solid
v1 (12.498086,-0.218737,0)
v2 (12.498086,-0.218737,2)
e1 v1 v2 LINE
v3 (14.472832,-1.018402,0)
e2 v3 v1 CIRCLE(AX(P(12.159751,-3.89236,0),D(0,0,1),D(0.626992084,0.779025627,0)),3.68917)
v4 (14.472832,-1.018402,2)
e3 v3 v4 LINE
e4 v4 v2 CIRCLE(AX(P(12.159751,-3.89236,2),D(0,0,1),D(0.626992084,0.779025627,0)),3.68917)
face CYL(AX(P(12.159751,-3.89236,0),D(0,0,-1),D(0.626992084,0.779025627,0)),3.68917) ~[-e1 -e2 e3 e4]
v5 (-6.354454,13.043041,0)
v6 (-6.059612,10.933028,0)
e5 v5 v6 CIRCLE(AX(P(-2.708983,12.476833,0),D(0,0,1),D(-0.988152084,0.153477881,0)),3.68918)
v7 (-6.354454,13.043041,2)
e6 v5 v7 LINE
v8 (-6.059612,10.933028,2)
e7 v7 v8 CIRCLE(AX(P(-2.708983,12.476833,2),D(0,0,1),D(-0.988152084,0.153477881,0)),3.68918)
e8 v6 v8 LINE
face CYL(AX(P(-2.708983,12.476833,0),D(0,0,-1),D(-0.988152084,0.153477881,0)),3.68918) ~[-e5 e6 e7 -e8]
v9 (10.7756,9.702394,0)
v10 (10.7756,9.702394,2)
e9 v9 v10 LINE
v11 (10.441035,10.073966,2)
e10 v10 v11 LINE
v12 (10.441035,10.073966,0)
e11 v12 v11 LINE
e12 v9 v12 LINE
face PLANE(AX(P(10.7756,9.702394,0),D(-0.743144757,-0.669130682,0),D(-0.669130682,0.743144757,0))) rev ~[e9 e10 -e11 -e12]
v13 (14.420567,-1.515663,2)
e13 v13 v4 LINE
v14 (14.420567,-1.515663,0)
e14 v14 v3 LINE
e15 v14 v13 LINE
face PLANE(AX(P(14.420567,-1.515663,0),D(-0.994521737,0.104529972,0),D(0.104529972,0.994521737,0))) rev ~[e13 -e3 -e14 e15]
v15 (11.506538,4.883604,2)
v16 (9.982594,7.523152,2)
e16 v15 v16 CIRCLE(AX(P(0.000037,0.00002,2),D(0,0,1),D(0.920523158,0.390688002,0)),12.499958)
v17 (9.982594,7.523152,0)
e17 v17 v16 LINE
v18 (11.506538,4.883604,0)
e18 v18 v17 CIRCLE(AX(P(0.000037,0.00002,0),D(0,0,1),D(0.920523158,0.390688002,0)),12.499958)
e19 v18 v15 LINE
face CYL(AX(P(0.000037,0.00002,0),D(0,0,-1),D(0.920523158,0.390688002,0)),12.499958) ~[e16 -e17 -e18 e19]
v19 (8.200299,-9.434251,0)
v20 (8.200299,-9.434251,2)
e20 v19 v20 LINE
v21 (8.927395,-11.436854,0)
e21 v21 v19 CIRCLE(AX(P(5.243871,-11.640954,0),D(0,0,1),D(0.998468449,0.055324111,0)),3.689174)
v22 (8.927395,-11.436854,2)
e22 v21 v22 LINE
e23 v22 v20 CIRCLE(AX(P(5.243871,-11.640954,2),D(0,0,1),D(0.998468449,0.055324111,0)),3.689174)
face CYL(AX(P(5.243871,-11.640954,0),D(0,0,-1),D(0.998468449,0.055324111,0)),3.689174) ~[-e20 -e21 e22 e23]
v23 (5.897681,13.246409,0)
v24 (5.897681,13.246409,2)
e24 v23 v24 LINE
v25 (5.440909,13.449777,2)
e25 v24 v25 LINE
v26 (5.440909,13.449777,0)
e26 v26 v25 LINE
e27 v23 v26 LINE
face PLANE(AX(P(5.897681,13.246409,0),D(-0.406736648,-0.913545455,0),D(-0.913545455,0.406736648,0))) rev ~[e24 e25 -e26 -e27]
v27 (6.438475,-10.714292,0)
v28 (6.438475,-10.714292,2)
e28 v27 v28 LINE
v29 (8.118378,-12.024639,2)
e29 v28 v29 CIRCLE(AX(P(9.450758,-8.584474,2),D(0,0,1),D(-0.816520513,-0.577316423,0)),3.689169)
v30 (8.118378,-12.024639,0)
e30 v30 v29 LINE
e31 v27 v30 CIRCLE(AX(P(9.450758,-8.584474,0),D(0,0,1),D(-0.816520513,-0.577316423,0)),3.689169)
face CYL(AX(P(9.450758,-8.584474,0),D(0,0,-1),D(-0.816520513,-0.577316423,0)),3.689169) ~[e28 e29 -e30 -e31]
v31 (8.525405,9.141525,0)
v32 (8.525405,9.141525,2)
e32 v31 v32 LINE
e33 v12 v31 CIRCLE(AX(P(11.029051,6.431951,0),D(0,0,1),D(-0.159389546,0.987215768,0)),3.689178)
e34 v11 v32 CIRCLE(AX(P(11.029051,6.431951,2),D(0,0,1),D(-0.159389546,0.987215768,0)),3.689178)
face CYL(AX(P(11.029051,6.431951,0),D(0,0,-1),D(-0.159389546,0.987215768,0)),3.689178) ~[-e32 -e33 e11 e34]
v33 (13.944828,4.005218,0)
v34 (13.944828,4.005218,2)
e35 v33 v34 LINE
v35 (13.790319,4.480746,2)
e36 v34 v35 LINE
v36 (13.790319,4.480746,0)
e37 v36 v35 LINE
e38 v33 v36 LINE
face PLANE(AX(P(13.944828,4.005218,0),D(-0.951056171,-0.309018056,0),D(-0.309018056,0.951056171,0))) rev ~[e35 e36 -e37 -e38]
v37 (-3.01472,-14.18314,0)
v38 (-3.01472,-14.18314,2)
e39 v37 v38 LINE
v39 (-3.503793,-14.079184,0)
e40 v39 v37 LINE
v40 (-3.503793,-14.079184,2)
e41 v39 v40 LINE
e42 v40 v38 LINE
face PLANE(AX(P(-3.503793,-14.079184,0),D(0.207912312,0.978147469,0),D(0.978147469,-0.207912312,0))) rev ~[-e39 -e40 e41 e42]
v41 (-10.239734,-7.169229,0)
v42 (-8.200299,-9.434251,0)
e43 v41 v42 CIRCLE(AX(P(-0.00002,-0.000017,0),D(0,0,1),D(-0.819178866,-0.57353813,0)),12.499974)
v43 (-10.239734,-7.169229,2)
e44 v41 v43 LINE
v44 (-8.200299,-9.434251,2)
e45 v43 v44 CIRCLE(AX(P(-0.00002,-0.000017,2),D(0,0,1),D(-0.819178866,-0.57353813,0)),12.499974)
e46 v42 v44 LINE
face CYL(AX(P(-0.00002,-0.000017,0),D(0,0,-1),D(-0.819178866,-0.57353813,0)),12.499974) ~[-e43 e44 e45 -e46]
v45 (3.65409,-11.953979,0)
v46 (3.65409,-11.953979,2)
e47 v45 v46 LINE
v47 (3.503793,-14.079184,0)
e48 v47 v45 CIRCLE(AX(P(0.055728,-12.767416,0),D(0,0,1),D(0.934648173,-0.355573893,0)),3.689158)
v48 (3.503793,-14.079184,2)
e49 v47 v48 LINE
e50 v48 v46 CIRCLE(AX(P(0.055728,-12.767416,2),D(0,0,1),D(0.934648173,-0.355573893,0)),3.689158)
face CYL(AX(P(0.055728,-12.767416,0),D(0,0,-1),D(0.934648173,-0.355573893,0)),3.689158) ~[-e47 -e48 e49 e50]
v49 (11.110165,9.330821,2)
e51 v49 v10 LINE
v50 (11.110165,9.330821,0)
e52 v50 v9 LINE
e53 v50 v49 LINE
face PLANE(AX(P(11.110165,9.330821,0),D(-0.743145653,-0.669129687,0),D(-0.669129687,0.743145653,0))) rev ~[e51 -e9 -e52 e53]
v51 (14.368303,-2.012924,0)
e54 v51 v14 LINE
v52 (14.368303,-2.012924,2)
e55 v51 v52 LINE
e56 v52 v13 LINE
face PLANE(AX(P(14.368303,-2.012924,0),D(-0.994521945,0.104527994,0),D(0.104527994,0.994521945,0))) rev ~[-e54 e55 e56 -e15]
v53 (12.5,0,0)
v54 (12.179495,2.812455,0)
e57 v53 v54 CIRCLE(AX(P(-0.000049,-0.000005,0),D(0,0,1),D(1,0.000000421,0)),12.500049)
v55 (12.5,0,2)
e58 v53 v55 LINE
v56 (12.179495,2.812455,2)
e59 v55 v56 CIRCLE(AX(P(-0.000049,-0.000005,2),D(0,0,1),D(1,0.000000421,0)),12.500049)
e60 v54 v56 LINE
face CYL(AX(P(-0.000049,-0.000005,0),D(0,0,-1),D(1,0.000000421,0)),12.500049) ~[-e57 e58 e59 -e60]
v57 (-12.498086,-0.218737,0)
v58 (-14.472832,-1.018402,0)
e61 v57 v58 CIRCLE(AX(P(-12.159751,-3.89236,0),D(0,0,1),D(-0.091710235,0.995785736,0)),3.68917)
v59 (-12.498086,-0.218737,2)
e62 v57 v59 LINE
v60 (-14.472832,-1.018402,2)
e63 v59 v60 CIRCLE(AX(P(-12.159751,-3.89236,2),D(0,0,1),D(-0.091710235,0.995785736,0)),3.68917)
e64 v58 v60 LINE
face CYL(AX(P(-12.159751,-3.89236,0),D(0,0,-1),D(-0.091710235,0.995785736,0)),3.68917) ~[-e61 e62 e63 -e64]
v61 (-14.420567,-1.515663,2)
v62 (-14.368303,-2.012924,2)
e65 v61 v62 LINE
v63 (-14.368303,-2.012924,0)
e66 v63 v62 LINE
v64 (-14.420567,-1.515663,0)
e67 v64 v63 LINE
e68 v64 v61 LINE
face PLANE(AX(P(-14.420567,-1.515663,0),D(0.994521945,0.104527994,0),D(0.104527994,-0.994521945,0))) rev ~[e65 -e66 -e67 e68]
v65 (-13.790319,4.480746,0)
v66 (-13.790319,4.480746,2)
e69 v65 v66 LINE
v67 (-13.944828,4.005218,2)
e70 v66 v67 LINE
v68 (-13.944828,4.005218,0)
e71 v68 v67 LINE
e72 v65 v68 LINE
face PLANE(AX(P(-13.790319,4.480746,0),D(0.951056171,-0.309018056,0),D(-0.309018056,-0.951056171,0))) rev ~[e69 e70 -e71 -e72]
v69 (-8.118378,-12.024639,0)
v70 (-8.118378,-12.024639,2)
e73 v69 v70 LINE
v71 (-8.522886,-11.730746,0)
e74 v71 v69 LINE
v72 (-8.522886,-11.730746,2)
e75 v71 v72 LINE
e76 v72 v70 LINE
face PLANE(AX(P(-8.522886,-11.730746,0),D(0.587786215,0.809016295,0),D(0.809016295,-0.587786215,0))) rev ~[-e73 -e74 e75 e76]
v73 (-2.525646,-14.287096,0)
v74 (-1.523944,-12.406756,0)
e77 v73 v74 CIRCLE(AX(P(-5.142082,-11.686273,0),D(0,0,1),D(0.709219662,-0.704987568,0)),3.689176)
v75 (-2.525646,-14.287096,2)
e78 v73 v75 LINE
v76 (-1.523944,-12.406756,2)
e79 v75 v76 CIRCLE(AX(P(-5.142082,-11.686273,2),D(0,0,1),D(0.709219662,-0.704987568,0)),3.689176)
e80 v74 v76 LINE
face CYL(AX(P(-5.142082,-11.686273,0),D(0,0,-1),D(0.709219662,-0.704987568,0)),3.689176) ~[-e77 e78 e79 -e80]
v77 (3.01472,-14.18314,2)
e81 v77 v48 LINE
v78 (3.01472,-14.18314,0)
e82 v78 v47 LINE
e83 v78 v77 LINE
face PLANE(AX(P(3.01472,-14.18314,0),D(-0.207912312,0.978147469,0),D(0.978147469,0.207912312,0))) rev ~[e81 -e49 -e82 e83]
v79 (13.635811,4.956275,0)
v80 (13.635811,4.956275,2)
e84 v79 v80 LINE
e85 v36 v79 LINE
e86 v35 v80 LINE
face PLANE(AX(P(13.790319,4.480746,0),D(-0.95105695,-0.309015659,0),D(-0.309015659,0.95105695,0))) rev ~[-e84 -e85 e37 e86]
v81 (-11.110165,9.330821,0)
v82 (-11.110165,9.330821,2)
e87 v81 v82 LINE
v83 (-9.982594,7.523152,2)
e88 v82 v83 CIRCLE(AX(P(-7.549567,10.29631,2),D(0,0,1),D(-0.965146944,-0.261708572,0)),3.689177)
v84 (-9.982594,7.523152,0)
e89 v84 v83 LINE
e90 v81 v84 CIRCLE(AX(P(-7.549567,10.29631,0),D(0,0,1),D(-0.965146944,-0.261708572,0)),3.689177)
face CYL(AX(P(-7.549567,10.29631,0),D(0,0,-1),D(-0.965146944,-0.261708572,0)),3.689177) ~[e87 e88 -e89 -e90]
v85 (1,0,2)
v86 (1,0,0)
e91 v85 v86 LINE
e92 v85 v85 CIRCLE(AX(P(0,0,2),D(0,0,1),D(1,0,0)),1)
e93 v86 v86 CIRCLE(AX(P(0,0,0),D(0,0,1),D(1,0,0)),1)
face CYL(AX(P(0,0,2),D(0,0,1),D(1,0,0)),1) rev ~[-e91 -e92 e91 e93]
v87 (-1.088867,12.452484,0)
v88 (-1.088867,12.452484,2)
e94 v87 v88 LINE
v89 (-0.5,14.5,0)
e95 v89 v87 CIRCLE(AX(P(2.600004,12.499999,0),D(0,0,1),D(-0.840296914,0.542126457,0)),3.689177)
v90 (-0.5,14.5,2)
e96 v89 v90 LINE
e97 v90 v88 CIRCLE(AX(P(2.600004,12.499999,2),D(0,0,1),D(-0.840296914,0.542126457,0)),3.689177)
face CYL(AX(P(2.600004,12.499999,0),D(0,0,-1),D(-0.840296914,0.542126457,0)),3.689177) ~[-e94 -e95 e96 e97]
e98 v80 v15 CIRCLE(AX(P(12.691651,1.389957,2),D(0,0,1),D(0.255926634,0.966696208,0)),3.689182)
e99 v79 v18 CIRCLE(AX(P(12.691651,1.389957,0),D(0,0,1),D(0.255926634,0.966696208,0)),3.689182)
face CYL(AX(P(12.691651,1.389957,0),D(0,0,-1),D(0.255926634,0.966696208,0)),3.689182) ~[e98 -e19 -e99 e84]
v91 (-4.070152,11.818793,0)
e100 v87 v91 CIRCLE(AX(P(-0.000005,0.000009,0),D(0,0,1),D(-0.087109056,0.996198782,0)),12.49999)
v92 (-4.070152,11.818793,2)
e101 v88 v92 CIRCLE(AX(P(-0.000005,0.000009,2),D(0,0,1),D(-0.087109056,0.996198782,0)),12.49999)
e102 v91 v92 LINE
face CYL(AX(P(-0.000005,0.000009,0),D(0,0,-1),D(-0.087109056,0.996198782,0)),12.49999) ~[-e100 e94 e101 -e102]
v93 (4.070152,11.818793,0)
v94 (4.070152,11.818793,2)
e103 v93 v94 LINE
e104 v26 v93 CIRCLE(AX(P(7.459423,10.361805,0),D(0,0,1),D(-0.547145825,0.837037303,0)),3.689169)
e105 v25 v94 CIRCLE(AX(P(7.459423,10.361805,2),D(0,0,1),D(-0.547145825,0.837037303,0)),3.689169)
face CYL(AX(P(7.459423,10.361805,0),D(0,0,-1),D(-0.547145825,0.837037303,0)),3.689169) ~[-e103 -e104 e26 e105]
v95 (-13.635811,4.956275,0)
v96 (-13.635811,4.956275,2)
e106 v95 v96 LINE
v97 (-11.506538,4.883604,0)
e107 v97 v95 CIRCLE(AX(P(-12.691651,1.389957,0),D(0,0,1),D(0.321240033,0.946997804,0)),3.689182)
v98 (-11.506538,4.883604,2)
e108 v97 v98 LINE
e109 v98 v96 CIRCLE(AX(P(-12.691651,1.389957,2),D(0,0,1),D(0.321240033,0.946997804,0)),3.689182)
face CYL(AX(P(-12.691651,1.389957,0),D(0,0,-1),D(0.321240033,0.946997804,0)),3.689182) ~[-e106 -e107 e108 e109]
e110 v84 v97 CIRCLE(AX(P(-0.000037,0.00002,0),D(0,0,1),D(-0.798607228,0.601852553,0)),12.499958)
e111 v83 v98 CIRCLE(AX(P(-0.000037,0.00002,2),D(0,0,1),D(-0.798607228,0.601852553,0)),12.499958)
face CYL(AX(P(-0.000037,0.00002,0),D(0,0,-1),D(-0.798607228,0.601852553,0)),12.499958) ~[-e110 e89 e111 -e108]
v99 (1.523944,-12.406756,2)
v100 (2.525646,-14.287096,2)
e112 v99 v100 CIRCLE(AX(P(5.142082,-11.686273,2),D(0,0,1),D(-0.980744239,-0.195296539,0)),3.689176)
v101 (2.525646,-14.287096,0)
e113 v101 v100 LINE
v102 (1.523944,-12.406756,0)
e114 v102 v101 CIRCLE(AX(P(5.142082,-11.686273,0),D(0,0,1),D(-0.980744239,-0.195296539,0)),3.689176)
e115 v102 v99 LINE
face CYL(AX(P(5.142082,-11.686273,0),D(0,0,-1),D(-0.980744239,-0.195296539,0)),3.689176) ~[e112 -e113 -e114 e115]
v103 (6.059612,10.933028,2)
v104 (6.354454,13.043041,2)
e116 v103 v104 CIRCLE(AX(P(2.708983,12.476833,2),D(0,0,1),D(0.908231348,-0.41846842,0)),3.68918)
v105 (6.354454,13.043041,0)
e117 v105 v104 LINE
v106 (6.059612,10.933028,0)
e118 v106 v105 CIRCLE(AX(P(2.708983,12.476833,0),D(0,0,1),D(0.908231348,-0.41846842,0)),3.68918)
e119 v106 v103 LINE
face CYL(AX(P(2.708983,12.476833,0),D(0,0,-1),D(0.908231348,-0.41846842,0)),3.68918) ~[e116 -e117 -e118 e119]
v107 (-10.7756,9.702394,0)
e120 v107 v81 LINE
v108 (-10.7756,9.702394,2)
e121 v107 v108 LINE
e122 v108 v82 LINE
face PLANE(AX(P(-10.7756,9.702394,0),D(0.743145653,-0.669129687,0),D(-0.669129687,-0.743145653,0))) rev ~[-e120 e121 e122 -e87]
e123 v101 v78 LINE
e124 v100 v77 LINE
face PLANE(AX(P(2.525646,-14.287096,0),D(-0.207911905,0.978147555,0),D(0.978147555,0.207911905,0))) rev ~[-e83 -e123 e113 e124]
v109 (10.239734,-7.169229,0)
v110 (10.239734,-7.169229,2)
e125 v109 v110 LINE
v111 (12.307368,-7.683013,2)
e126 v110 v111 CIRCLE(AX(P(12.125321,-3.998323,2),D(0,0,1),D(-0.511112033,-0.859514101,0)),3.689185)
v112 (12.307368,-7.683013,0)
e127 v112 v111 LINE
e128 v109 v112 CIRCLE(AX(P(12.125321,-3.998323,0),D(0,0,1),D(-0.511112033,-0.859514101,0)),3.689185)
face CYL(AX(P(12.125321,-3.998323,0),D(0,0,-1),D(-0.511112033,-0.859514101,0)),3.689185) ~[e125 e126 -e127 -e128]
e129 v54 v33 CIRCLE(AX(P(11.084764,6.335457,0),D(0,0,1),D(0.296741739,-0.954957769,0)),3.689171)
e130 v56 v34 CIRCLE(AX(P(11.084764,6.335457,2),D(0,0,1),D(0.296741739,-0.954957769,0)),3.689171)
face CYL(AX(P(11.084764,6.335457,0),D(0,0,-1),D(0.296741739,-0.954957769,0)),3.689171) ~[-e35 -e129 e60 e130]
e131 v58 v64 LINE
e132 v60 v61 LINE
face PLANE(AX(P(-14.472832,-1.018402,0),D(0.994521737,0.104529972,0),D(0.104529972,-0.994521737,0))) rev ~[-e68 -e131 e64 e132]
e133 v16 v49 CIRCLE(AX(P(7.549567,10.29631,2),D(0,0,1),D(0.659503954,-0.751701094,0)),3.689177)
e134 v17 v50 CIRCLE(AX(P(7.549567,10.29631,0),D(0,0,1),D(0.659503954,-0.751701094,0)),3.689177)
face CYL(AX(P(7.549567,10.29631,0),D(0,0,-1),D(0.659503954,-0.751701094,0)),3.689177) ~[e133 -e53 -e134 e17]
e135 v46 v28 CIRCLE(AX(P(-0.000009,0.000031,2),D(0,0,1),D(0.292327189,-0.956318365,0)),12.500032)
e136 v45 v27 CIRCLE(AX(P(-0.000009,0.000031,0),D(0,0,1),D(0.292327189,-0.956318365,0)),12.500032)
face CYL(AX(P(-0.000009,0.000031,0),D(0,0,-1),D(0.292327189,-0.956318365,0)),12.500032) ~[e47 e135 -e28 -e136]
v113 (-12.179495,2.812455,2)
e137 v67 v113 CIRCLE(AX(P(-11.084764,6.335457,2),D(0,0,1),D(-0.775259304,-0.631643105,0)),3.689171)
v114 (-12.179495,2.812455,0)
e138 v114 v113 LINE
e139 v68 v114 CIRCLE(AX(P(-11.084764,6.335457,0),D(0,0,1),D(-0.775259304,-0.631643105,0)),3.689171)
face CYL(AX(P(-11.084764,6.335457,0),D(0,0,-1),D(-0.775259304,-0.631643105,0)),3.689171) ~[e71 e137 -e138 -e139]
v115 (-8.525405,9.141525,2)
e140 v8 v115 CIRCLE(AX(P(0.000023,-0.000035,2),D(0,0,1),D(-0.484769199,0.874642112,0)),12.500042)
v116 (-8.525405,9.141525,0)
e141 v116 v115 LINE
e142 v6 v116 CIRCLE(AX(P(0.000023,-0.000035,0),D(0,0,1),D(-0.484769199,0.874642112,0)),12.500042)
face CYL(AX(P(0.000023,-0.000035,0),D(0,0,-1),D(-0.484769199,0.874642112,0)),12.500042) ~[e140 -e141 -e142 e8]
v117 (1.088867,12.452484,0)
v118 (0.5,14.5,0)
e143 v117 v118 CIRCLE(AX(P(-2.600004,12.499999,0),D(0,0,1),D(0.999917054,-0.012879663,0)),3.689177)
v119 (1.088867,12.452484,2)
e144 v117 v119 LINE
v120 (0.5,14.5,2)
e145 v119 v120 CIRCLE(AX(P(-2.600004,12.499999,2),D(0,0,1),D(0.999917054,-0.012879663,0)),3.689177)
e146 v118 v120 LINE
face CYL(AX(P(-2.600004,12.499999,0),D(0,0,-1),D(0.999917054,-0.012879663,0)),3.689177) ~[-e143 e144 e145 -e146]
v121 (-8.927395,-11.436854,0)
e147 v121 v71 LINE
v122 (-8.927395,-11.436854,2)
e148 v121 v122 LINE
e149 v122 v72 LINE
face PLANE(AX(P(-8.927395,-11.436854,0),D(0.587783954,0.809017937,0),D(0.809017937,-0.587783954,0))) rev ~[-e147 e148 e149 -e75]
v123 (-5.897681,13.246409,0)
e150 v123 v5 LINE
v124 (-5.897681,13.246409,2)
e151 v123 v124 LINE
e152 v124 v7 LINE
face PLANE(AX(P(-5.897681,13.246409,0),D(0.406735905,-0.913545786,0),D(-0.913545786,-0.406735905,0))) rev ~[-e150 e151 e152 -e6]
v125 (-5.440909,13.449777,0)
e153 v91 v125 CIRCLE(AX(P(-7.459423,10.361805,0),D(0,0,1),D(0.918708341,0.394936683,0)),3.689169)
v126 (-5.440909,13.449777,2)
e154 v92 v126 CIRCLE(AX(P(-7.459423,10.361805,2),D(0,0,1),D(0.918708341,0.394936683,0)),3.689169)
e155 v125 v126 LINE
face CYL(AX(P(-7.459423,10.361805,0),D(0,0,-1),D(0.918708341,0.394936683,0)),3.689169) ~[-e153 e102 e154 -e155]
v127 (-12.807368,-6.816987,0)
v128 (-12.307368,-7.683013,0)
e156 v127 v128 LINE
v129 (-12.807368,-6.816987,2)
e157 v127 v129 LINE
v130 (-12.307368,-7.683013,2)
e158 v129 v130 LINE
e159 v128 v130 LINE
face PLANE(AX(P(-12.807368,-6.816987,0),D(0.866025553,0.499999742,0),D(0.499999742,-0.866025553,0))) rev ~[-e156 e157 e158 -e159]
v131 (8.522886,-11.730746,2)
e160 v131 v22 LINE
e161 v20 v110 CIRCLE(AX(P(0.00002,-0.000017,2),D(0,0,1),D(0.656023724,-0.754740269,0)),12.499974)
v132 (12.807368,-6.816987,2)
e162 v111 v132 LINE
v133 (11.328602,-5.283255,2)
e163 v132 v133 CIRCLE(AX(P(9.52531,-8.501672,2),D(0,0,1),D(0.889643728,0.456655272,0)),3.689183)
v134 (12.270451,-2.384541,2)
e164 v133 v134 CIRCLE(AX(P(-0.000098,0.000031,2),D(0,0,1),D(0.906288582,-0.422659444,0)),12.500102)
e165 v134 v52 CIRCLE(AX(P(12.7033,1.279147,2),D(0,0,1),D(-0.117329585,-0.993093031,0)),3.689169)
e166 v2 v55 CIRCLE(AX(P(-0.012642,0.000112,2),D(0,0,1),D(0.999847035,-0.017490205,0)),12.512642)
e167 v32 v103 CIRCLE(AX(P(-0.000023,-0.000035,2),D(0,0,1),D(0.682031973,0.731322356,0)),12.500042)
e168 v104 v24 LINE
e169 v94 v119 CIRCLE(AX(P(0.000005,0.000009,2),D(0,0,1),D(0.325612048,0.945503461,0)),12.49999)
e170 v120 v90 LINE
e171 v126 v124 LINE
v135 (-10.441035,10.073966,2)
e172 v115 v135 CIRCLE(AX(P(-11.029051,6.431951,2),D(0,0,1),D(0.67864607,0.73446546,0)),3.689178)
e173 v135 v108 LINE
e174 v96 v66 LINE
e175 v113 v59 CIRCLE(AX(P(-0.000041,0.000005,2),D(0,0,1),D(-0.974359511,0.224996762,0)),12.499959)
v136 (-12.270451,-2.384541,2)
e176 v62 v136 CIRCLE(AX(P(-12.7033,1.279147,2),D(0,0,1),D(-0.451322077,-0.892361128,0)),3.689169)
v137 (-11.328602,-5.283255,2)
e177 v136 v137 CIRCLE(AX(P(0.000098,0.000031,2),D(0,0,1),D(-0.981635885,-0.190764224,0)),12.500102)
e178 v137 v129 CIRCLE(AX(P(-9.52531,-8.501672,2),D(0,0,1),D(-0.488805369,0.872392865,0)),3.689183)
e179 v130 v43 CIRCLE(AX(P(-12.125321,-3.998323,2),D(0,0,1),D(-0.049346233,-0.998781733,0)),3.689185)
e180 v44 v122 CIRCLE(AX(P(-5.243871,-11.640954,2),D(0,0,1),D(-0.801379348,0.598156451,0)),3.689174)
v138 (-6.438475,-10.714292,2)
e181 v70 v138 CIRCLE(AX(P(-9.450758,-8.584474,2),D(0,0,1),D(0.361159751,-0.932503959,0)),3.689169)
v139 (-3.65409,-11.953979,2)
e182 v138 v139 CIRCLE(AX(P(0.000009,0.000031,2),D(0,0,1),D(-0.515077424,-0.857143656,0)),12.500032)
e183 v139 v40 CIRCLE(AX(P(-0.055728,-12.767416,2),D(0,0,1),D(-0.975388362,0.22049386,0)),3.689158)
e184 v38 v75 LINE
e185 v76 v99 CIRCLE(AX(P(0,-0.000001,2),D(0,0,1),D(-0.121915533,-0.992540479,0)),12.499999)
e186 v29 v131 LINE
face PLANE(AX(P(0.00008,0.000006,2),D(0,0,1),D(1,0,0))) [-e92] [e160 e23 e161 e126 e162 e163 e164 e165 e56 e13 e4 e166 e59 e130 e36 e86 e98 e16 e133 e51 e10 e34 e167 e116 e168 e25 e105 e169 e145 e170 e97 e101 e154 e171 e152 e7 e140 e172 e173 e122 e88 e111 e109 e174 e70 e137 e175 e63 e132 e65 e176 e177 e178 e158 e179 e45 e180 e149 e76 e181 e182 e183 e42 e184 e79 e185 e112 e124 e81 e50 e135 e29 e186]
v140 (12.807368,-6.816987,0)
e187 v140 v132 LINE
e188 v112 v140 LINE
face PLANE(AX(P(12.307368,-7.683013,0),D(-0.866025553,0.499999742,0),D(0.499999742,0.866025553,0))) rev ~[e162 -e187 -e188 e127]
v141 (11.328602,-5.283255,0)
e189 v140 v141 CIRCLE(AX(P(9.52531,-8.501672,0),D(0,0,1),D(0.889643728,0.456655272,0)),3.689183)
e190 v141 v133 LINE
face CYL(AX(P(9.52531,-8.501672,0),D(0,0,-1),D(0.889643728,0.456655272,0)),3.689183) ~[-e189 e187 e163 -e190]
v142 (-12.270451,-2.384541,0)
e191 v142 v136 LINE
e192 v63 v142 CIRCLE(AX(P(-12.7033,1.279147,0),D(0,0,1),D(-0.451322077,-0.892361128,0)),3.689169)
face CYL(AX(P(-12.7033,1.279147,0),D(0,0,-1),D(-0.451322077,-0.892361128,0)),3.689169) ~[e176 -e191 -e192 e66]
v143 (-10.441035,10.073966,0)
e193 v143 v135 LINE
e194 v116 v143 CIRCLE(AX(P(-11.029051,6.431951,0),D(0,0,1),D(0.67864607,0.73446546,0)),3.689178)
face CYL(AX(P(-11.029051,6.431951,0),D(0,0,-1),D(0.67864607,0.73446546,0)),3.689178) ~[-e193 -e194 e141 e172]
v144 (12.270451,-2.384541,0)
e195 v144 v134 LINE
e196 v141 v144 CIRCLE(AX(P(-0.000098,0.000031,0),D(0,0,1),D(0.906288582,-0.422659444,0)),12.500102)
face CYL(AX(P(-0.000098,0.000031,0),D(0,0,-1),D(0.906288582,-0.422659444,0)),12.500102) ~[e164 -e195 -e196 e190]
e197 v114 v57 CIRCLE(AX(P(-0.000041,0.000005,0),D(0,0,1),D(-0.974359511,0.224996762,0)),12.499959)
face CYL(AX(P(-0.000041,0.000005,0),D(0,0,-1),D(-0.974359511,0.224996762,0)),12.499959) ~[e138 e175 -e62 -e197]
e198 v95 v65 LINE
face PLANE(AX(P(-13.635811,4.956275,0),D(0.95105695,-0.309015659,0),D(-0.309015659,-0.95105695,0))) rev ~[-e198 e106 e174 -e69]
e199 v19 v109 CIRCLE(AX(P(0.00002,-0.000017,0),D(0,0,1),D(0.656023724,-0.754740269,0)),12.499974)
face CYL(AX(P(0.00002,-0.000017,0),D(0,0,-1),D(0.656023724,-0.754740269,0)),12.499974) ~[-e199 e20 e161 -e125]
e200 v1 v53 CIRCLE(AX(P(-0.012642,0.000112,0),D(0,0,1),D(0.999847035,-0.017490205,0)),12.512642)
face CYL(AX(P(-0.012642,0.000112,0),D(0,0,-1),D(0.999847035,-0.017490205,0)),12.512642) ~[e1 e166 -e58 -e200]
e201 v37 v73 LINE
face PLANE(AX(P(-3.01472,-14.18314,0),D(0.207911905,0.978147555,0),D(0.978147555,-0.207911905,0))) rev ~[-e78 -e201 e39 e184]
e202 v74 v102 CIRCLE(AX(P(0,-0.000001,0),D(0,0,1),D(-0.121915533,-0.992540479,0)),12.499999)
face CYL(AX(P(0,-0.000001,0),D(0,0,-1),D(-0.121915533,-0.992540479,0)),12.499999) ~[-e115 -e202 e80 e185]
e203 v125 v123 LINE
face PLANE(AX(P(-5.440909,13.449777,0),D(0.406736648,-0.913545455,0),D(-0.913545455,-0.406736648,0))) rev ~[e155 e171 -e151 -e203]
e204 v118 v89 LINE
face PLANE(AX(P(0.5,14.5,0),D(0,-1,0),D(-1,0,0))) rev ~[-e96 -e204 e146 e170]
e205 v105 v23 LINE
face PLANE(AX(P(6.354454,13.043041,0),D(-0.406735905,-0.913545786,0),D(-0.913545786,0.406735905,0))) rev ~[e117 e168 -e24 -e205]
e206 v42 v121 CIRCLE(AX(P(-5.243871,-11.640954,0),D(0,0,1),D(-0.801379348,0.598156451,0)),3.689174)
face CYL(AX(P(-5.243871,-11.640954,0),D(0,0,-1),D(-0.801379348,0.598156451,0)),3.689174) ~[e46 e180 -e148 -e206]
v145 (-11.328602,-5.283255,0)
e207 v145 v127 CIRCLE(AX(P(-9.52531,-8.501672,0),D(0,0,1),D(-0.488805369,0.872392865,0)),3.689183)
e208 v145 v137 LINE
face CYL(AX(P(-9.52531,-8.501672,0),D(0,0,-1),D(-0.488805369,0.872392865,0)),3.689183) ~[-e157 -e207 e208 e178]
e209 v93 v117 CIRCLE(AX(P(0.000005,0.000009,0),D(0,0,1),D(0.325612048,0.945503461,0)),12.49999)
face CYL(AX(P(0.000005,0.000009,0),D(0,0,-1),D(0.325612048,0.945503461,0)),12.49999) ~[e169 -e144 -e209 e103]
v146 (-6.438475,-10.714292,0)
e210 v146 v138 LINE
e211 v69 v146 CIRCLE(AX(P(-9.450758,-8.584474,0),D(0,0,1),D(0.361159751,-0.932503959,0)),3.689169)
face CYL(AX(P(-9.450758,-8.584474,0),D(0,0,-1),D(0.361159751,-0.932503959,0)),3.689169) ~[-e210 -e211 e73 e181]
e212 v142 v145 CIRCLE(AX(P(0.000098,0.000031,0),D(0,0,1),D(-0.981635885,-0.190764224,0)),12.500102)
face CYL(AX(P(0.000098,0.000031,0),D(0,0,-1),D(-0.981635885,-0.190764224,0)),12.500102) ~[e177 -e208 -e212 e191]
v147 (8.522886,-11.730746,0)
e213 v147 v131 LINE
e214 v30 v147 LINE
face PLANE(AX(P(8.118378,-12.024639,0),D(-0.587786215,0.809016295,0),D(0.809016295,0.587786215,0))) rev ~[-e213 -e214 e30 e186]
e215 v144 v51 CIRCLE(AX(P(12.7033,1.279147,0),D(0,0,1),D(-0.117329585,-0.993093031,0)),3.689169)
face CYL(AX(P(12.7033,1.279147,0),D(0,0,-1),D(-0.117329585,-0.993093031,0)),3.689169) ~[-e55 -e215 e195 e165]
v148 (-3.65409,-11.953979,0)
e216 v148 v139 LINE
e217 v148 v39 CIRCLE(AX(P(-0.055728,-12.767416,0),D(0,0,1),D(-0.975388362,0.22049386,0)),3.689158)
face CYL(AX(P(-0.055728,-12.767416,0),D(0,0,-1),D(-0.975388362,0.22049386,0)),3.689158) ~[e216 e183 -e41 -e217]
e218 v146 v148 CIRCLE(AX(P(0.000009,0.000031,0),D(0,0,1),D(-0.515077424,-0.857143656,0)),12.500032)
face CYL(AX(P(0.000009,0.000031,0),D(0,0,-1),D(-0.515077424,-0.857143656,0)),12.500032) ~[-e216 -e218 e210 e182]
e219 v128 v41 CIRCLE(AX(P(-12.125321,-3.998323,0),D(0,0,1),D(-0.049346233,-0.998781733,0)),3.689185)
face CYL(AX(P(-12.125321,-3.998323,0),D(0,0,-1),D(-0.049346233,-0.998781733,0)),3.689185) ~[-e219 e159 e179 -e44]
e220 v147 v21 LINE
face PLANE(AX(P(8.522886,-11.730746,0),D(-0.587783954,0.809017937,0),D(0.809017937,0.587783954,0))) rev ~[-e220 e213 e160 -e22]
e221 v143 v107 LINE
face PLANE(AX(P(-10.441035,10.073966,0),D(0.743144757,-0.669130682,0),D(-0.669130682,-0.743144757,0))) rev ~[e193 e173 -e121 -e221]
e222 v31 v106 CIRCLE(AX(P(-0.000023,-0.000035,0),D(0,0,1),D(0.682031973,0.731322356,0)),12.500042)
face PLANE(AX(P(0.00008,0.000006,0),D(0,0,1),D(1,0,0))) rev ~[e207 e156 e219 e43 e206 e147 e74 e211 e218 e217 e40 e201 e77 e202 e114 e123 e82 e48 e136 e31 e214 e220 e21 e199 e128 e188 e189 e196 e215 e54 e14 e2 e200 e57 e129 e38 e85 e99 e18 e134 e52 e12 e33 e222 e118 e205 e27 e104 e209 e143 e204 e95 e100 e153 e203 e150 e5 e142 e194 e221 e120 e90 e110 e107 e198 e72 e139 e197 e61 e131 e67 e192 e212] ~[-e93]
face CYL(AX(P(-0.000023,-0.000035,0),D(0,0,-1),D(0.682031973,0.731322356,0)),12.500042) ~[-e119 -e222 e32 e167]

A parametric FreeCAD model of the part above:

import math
import FreeCAD as App
import Part
import Sketcher
from FreeCAD import Vector

doc = App.newDocument("Part")
body = doc.addObject("PartDesign::Body", "Body")

sketch1 = body.newObject("Sketcher::SketchObject", "Sketch")
sketch1.AttachmentSupport = (doc.getObject("XY_Plane"), [""])
sketch1.MapMode = "FlatFace"
sketch1.addGeometry([
    Part.ArcOfCircle(Part.Circle(Vector(-0.012642, 0.000112, 0), Vector(0, 0, 1), 12.512642), math.radians(-1.002166), math.radians(-0.000511)),
    Part.ArcOfCircle(Part.Circle(Vector(-0.000049, -0.000005, 0), Vector(0, 0, 1), 12.500049), math.radians(0.000024), math.radians(13.00264)),
    Part.ArcOfCircle(Part.Circle(Vector(11.084764, 6.335457, 0), Vector(0, 0, 1), 3.689171), math.radians(-72.737991), math.radians(-39.171452)),
    Part.LineSegment(Vector(13.944828, 4.005218, 0), Vector(13.790319, 4.480746, 0)),
    Part.LineSegment(Vector(13.790319, 4.480746, 0), Vector(13.635811, 4.956275, 0)),
    Part.ArcOfCircle(Part.Circle(Vector(12.691651, 1.389957, 0), Vector(0, 0, 1), 3.689182), math.radians(75.1715), math.radians(108.737933)),
    Part.ArcOfCircle(Part.Circle(Vector(0.000037, 0.00002, 0), Vector(0, 0, 1), 12.499958), math.radians(22.997316), math.radians(37.002693)),
    Part.ArcOfCircle(Part.Circle(Vector(7.549567, 10.29631, 0), Vector(0, 0, 1), 3.689177), math.radians(-48.737948), math.radians(-15.171467)),
    Part.LineSegment(Vector(11.110165, 9.330821, 0), Vector(10.7756, 9.702394, 0)),
    Part.LineSegment(Vector(10.7756, 9.702394, 0), Vector(10.441035, 10.073966, 0)),
    Part.ArcOfCircle(Part.Circle(Vector(11.029051, 6.431951, 0), Vector(0, 0, 1), 3.689178), math.radians(99.171465), math.radians(132.737933)),
    Part.ArcOfCircle(Part.Circle(Vector(-0.000023, -0.000035, 0), Vector(0, 0, 1), 12.500042), math.radians(46.997367), math.radians(61.002648)),
    Part.ArcOfCircle(Part.Circle(Vector(2.708983, 12.476833, 0), Vector(0, 0, 1), 3.68918), math.radians(-24.73793), math.radians(8.828529)),
    Part.LineSegment(Vector(6.354454, 13.043041, 0), Vector(5.897681, 13.246409, 0)),
    Part.LineSegment(Vector(5.897681, 13.246409, 0), Vector(5.440909, 13.449777, 0)),
    Part.ArcOfCircle(Part.Circle(Vector(7.459423, 10.361805, 0), Vector(0, 0, 1), 3.689169), math.radians(123.171424), math.radians(156.737975)),
    Part.ArcOfCircle(Part.Circle(Vector(0.000005, 0.000009, 0), Vector(0, 0, 1), 12.49999), math.radians(70.99734), math.radians(85.002685)),
    Part.ArcOfCircle(Part.Circle(Vector(-2.600004, 12.499999, 0), Vector(0, 0, 1), 3.689177), math.radians(-0.737971), math.radians(32.828514)),
    Part.LineSegment(Vector(0.5, 14.5, 0), Vector(-0.5, 14.5, 0)),
    Part.ArcOfCircle(Part.Circle(Vector(2.600004, 12.499999, 0), Vector(0, 0, 1), 3.689177), math.radians(147.171486), math.radians(180.737971)),
    Part.ArcOfCircle(Part.Circle(Vector(-0.000005, 0.000009, 0), Vector(0, 0, 1), 12.49999), math.radians(94.997315), math.radians(109.00266)),
    Part.ArcOfCircle(Part.Circle(Vector(-7.459423, 10.361805, 0), Vector(0, 0, 1), 3.689169), math.radians(23.262025), math.radians(56.828576)),
    Part.LineSegment(Vector(-5.440909, 13.449777, 0), Vector(-5.897681, 13.246409, 0)),
    Part.LineSegment(Vector(-5.897681, 13.246409, 0), Vector(-6.354454, 13.043041, 0)),
    Part.ArcOfCircle(Part.Circle(Vector(-2.708983, 12.476833, 0), Vector(0, 0, 1), 3.68918), math.radians(171.171471), math.radians(204.73793)),
    Part.ArcOfCircle(Part.Circle(Vector(0.000023, -0.000035, 0), Vector(0, 0, 1), 12.500042), math.radians(118.997352), math.radians(133.002633)),
    Part.ArcOfCircle(Part.Circle(Vector(-11.029051, 6.431951, 0), Vector(0, 0, 1), 3.689178), math.radians(47.262067), math.radians(80.828535)),
    Part.LineSegment(Vector(-10.441035, 10.073966, 0), Vector(-10.7756, 9.702394, 0)),
    Part.LineSegment(Vector(-10.7756, 9.702394, 0), Vector(-11.110165, 9.330821, 0)),
    Part.ArcOfCircle(Part.Circle(Vector(-7.549567, 10.29631, 0), Vector(0, 0, 1), 3.689177), math.radians(-164.828533), math.radians(-131.262052)),
    Part.ArcOfCircle(Part.Circle(Vector(-0.000037, 0.00002, 0), Vector(0, 0, 1), 12.499958), math.radians(142.997307), math.radians(157.002684)),
    Part.ArcOfCircle(Part.Circle(Vector(-12.691651, 1.389957, 0), Vector(0, 0, 1), 3.689182), math.radians(71.262067), math.radians(104.8285)),
    Part.LineSegment(Vector(-13.635811, 4.956275, 0), Vector(-13.790319, 4.480746, 0)),
    Part.LineSegment(Vector(-13.790319, 4.480746, 0), Vector(-13.944828, 4.005218, 0)),
    Part.ArcOfCircle(Part.Circle(Vector(-11.084764, 6.335457, 0), Vector(0, 0, 1), 3.689171), math.radians(-140.828548), math.radians(-107.262009)),
    Part.ArcOfCircle(Part.Circle(Vector(-0.000041, 0.000005, 0), Vector(0, 0, 1), 12.499959), math.radians(166.997312), math.radians(181.002692)),
    Part.ArcOfCircle(Part.Circle(Vector(-12.159751, -3.89236, 0), Vector(0, 0, 1), 3.68917), math.radians(95.262003), math.radians(128.828551)),
    Part.LineSegment(Vector(-14.472832, -1.018402, 0), Vector(-14.420567, -1.515663, 0)),
    Part.LineSegment(Vector(-14.420567, -1.515663, 0), Vector(-14.368303, -2.012924, 0)),
    Part.ArcOfCircle(Part.Circle(Vector(-12.7033, 1.279147, 0), Vector(0, 0, 1), 3.689169), math.radians(-116.828539), math.radians(-83.26199)),
    Part.ArcOfCircle(Part.Circle(Vector(0.000098, 0.000031, 0), Vector(0, 0, 1), 12.500102), math.radians(-169.002613), math.radians(-154.997396)),
    Part.ArcOfCircle(Part.Circle(Vector(-9.52531, -8.501672, 0), Vector(0, 0, 1), 3.689183), math.radians(119.262092), math.radians(152.828512)),
    Part.LineSegment(Vector(-12.807368, -6.816987, 0), Vector(-12.307368, -7.683013, 0)),
    Part.ArcOfCircle(Part.Circle(Vector(-12.125321, -3.998323, 0), Vector(0, 0, 1), 3.689185), math.radians(-92.82848), math.radians(-59.26207)),
    Part.ArcOfCircle(Part.Circle(Vector(-0.00002, -0.000017, 0), Vector(0, 0, 1), 12.499974), math.radians(-145.002679), math.radians(-130.99732)),
    Part.ArcOfCircle(Part.Circle(Vector(-5.243871, -11.640954, 0), Vector(0, 0, 1), 3.689174), math.radians(143.262023), math.radians(176.828543)),
    Part.LineSegment(Vector(-8.927395, -11.436854, 0), Vector(-8.522886, -11.730746, 0)),
    Part.LineSegment(Vector(-8.522886, -11.730746, 0), Vector(-8.118378, -12.024639, 0)),
    Part.ArcOfCircle(Part.Circle(Vector(-9.450758, -8.584474, 0), Vector(0, 0, 1), 3.689169), math.radians(-68.828563), math.radians(-35.262015)),
    Part.ArcOfCircle(Part.Circle(Vector(0.000009, 0.000031, 0), Vector(0, 0, 1), 12.500032), math.radians(-121.00263), math.radians(-106.997333)),
    Part.ArcOfCircle(Part.Circle(Vector(-0.055728, -12.767416, 0), Vector(0, 0, 1), 3.689158), math.radians(167.261959), math.radians(200.828621)),
    Part.LineSegment(Vector(-3.503793, -14.079184, 0), Vector(-3.01472, -14.18314, 0)),
    Part.LineSegment(Vector(-3.01472, -14.18314, 0), Vector(-2.525646, -14.287096, 0)),
    Part.ArcOfCircle(Part.Circle(Vector(-5.142082, -11.686273, 0), Vector(0, 0, 1), 3.689176), math.radians(-44.82854), math.radians(-11.262047)),
    Part.ArcOfCircle(Part.Circle(Vector(0, -0.000001, 0), Vector(0, 0, 1), 12.499999), math.radians(-97.002666), math.radians(-82.997334)),
    Part.ArcOfCircle(Part.Circle(Vector(5.142082, -11.686273, 0), Vector(0, 0, 1), 3.689176), math.radians(-168.737953), math.radians(-135.17146)),
    Part.LineSegment(Vector(2.525646, -14.287096, 0), Vector(3.01472, -14.18314, 0)),
    Part.LineSegment(Vector(3.01472, -14.18314, 0), Vector(3.503793, -14.079184, 0)),
    Part.ArcOfCircle(Part.Circle(Vector(0.055728, -12.767416, 0), Vector(0, 0, 1), 3.689158), math.radians(-20.828621), math.radians(12.738041)),
    Part.ArcOfCircle(Part.Circle(Vector(-0.000009, 0.000031, 0), Vector(0, 0, 1), 12.500032), math.radians(-73.002667), math.radians(-58.99737)),
    Part.ArcOfCircle(Part.Circle(Vector(9.450758, -8.584474, 0), Vector(0, 0, 1), 3.689169), math.radians(-144.737985), math.radians(-111.171437)),
    Part.LineSegment(Vector(8.118378, -12.024639, 0), Vector(8.522886, -11.730746, 0)),
    Part.LineSegment(Vector(8.522886, -11.730746, 0), Vector(8.927395, -11.436854, 0)),
    Part.ArcOfCircle(Part.Circle(Vector(5.243871, -11.640954, 0), Vector(0, 0, 1), 3.689174), math.radians(3.171457), math.radians(36.737977)),
    Part.ArcOfCircle(Part.Circle(Vector(0.00002, -0.000017, 0), Vector(0, 0, 1), 12.499974), math.radians(-49.00268), math.radians(-34.997321)),
    Part.ArcOfCircle(Part.Circle(Vector(12.125321, -3.998323, 0), Vector(0, 0, 1), 3.689185), math.radians(-120.73793), math.radians(-87.17152)),
    Part.LineSegment(Vector(12.307368, -7.683013, 0), Vector(12.807368, -6.816987, 0)),
    Part.ArcOfCircle(Part.Circle(Vector(9.52531, -8.501672, 0), Vector(0, 0, 1), 3.689183), math.radians(27.171488), math.radians(60.737908)),
    Part.ArcOfCircle(Part.Circle(Vector(-0.000098, 0.000031, 0), Vector(0, 0, 1), 12.500102), math.radians(-25.002604), math.radians(-10.997387)),
    Part.ArcOfCircle(Part.Circle(Vector(12.7033, 1.279147, 0), Vector(0, 0, 1), 3.689169), math.radians(-96.73801), math.radians(-63.171461)),
    Part.LineSegment(Vector(14.368303, -2.012924, 0), Vector(14.420567, -1.515663, 0)),
    Part.LineSegment(Vector(14.420567, -1.515663, 0), Vector(14.472832, -1.018402, 0)),
    Part.ArcOfCircle(Part.Circle(Vector(12.159751, -3.89236, 0), Vector(0, 0, 1), 3.68917), math.radians(51.171449), math.radians(84.737997)),
], False)
sketch1.addConstraint([
    Sketcher.Constraint("Coincident", 0, 2, 1, 1),
    Sketcher.Constraint("Coincident", 1, 2, 2, 1),
    Sketcher.Constraint("Coincident", 2, 2, 3, 1),
    Sketcher.Constraint("Coincident", 3, 2, 4, 1),
    Sketcher.Constraint("Coincident", 4, 2, 5, 1),
    Sketcher.Constraint("Coincident", 5, 2, 6, 1),
    Sketcher.Constraint("Coincident", 6, 2, 7, 1),
    Sketcher.Constraint("Coincident", 7, 2, 8, 1),
    Sketcher.Constraint("Coincident", 8, 2, 9, 1),
    Sketcher.Constraint("Coincident", 9, 2, 10, 1),
    Sketcher.Constraint("Coincident", 10, 2, 11, 1),
    Sketcher.Constraint("Coincident", 11, 2, 12, 1),
    Sketcher.Constraint("Coincident", 12, 2, 13, 1),
    Sketcher.Constraint("Coincident", 13, 2, 14, 1),
    Sketcher.Constraint("Coincident", 14, 2, 15, 1),
    Sketcher.Constraint("Coincident", 15, 2, 16, 1),
    Sketcher.Constraint("Coincident", 16, 2, 17, 1),
    Sketcher.Constraint("Coincident", 17, 2, 18, 1),
    Sketcher.Constraint("Coincident", 18, 2, 19, 1),
    Sketcher.Constraint("Coincident", 19, 2, 20, 1),
    Sketcher.Constraint("Coincident", 20, 2, 21, 1),
    Sketcher.Constraint("Coincident", 21, 2, 22, 1),
    Sketcher.Constraint("Coincident", 22, 2, 23, 1),
    Sketcher.Constraint("Coincident", 23, 2, 24, 1),
    Sketcher.Constraint("Coincident", 24, 2, 25, 1),
    Sketcher.Constraint("Coincident", 25, 2, 26, 1),
    Sketcher.Constraint("Coincident", 26, 2, 27, 1),
    Sketcher.Constraint("Coincident", 27, 2, 28, 1),
    Sketcher.Constraint("Coincident", 28, 2, 29, 1),
    Sketcher.Constraint("Coincident", 29, 2, 30, 1),
    Sketcher.Constraint("Coincident", 30, 2, 31, 1),
    Sketcher.Constraint("Coincident", 31, 2, 32, 1),
    Sketcher.Constraint("Coincident", 32, 2, 33, 1),
    Sketcher.Constraint("Coincident", 33, 2, 34, 1),
    Sketcher.Constraint("Coincident", 34, 2, 35, 1),
    Sketcher.Constraint("Coincident", 35, 2, 36, 1),
    Sketcher.Constraint("Coincident", 36, 2, 37, 1),
    Sketcher.Constraint("Coincident", 37, 2, 38, 1),
    Sketcher.Constraint("Coincident", 38, 2, 39, 1),
    Sketcher.Constraint("Coincident", 39, 2, 40, 1),
    Sketcher.Constraint("Coincident", 40, 2, 41, 1),
    Sketcher.Constraint("Coincident", 41, 2, 42, 1),
    Sketcher.Constraint("Coincident", 42, 2, 43, 1),
    Sketcher.Constraint("Coincident", 43, 2, 44, 1),
    Sketcher.Constraint("Coincident", 44, 2, 45, 1),
    Sketcher.Constraint("Coincident", 45, 2, 46, 1),
    Sketcher.Constraint("Coincident", 46, 2, 47, 1),
    Sketcher.Constraint("Coincident", 47, 2, 48, 1),
    Sketcher.Constraint("Coincident", 48, 2, 49, 1),
    Sketcher.Constraint("Coincident", 49, 2, 50, 1),
    Sketcher.Constraint("Coincident", 50, 2, 51, 1),
    Sketcher.Constraint("Coincident", 51, 2, 52, 1),
    Sketcher.Constraint("Coincident", 52, 2, 53, 1),
    Sketcher.Constraint("Coincident", 53, 2, 54, 1),
    Sketcher.Constraint("Coincident", 54, 2, 55, 1),
    Sketcher.Constraint("Coincident", 55, 2, 56, 1),
    Sketcher.Constraint("Coincident", 56, 2, 57, 1),
    Sketcher.Constraint("Coincident", 57, 2, 58, 1),
    Sketcher.Constraint("Coincident", 58, 2, 59, 1),
    Sketcher.Constraint("Coincident", 59, 2, 60, 1),
    Sketcher.Constraint("Coincident", 60, 2, 61, 1),
    Sketcher.Constraint("Coincident", 61, 2, 62, 1),
    Sketcher.Constraint("Coincident", 62, 2, 63, 1),
    Sketcher.Constraint("Coincident", 63, 2, 64, 1),
    Sketcher.Constraint("Coincident", 64, 2, 65, 1),
    Sketcher.Constraint("Coincident", 65, 2, 66, 1),
    Sketcher.Constraint("Coincident", 66, 2, 67, 1),
    Sketcher.Constraint("Coincident", 67, 2, 68, 1),
    Sketcher.Constraint("Coincident", 68, 2, 69, 1),
    Sketcher.Constraint("Coincident", 69, 2, 70, 1),
    Sketcher.Constraint("Coincident", 70, 2, 71, 1),
    Sketcher.Constraint("Coincident", 71, 2, 72, 1),
    Sketcher.Constraint("Coincident", 72, 2, 0, 1),
    Sketcher.Constraint("Horizontal", 18),
    Sketcher.Constraint("Coincident", 54, 3, -1, 1),
    Sketcher.Constraint("Coincident", 20, 3, 16, 3),
    Sketcher.Constraint("PointOnObject", 0, 2, -1),
    Sketcher.Constraint("Radius", 54, 12.499999),
    Sketcher.Constraint("DistanceX", 18, 2, 18, 1, 1.0),
    Sketcher.Constraint("Distance", 42, 1.000001),
    Sketcher.Constraint("Distance", 66, 1.000001),
    Sketcher.Constraint("Distance", 3, 0.5),
    Sketcher.Constraint("Distance", 4, 0.500001),
    Sketcher.Constraint("Distance", 8, 0.5),
    Sketcher.Constraint("Distance", 9, 0.499999),
    Sketcher.Constraint("Distance", 13, 0.5),
    Sketcher.Constraint("Distance", 14, 0.499999),
    Sketcher.Constraint("Distance", 22, 0.499999),
    Sketcher.Constraint("Distance", 23, 0.5),
    Sketcher.Constraint("Distance", 27, 0.499999),
    Sketcher.Constraint("Distance", 28, 0.5),
    Sketcher.Constraint("Distance", 32, 0.500001),
    Sketcher.Constraint("Distance", 33, 0.5),
    Sketcher.Constraint("Distance", 37, 0.5),
    Sketcher.Constraint("Distance", 38, 0.5),
    Sketcher.Constraint("Distance", 46, 0.5),
    Sketcher.Constraint("Distance", 47, 0.5),
    Sketcher.Constraint("Distance", 51, 0.499999),
    Sketcher.Constraint("Distance", 52, 0.5),
    Sketcher.Constraint("Distance", 56, 0.5),
    Sketcher.Constraint("Distance", 57, 0.499999),
    Sketcher.Constraint("Distance", 61, 0.5),
    Sketcher.Constraint("Distance", 62, 0.5),
    Sketcher.Constraint("Distance", 70, 0.5),
    Sketcher.Constraint("Distance", 71, 0.5),
    Sketcher.Constraint("DistanceY", -1, 1, 17, 3, 12.499999),
    Sketcher.Constraint("DistanceY", -1, 1, 19, 3, 12.499999),
    Sketcher.Constraint("DistanceX", -1, 1, 0, 2, 12.5),
    Sketcher.Constraint("DistanceX", -1, 1, 17, 2, 0.5),
    Sketcher.Constraint("DistanceY", -1, 1, 17, 2, 14.5),
    Sketcher.Constraint("Radius", 0, 12.512642),
    Sketcher.Constraint("Radius", 1, 12.500049),
    Sketcher.Constraint("Radius", 2, 3.689171),
    Sketcher.Constraint("Radius", 10, 3.689178),
    Sketcher.Constraint("Radius", 12, 3.68918),
    Sketcher.Constraint("Radius", 15, 3.689169),
    Sketcher.Constraint("Radius", 16, 12.49999),
    Sketcher.Constraint("Radius", 20, 12.49999),
    Sketcher.Constraint("Radius", 21, 3.689169),
    Sketcher.Constraint("Radius", 24, 3.68918),
    Sketcher.Constraint("Radius", 26, 3.689178),
    Sketcher.Constraint("Radius", 34, 3.689171),
    Sketcher.Constraint("Radius", 35, 12.499959),
    Sketcher.Constraint("Radius", 36, 3.68917),
    Sketcher.Constraint("Radius", 39, 3.689169),
    Sketcher.Constraint("Radius", 48, 3.689169),
    Sketcher.Constraint("Radius", 49, 12.500032),
    Sketcher.Constraint("Radius", 50, 3.689158),
    Sketcher.Constraint("Radius", 58, 3.689158),
    Sketcher.Constraint("Radius", 59, 12.500032),
    Sketcher.Constraint("Radius", 60, 3.689169),
    Sketcher.Constraint("Radius", 69, 3.689169),
    Sketcher.Constraint("Radius", 72, 3.68917),
    Sketcher.Constraint("Radius", 5, 3.689182),
    Sketcher.Constraint("Radius", 6, 12.499958),
    Sketcher.Constraint("Radius", 7, 3.689177),
    Sketcher.Constraint("Radius", 11, 12.500042),
    Sketcher.Constraint("Radius", 17, 3.689177),
    Sketcher.Constraint("Radius", 19, 3.689177),
    Sketcher.Constraint("Radius", 25, 12.500042),
    Sketcher.Constraint("Radius", 29, 3.689177),
    Sketcher.Constraint("Radius", 30, 12.499958),
    Sketcher.Constraint("Radius", 31, 3.689182),
    Sketcher.Constraint("Radius", 40, 12.500102),
    Sketcher.Constraint("Radius", 41, 3.689183),
    Sketcher.Constraint("Radius", 43, 3.689185),
    Sketcher.Constraint("Radius", 44, 12.499974),
    Sketcher.Constraint("Radius", 45, 3.689174),
    Sketcher.Constraint("Radius", 53, 3.689176),
    Sketcher.Constraint("Radius", 55, 3.689176),
    Sketcher.Constraint("Radius", 63, 3.689174),
    Sketcher.Constraint("Radius", 64, 12.499974),
    Sketcher.Constraint("Radius", 65, 3.689185),
    Sketcher.Constraint("Radius", 67, 3.689183),
    Sketcher.Constraint("Radius", 68, 12.500102),
    Sketcher.Constraint("DistanceX", 39, 3, -1, 1, 12.7033),
    Sketcher.Constraint("DistanceX", -1, 1, 69, 3, 12.7033),
    Sketcher.Constraint("DistanceX", -1, 1, 8, 2, 10.7756),
    Sketcher.Constraint("DistanceX", 27, 2, -1, 1, 10.7756),
    Sketcher.Constraint("DistanceX", 40, 2, -1, 1, 11.328602),
    Sketcher.Constraint("DistanceX", 44, 2, -1, 1, 8.200299),
    Sketcher.Constraint("DistanceX", -1, 1, 63, 2, 8.200299),
    Sketcher.Constraint("DistanceY", -1, 1, 0, 3, 0.000112),
    Sketcher.Constraint("DistanceX", -1, 1, 5, 3, 12.691651),
    Sketcher.Constraint("DistanceY", -1, 1, 7, 3, 10.29631),
    Sketcher.Constraint("DistanceX", -1, 1, 10, 3, 11.029051),
    Sketcher.Constraint("DistanceY", -1, 1, 10, 3, 6.431951),
    Sketcher.Constraint("DistanceX", 26, 3, -1, 1, 11.029051),
    Sketcher.Constraint("DistanceY", -1, 1, 26, 3, 6.431951),
    Sketcher.Constraint("DistanceY", -1, 1, 29, 3, 10.29631),
    Sketcher.Constraint("DistanceX", 31, 3, -1, 1, 12.691651),
    Sketcher.Constraint("DistanceX", 36, 3, -1, 1, 12.159751),
    Sketcher.Constraint("DistanceY", 36, 3, -1, 1, 3.89236),
    Sketcher.Constraint("DistanceX", 41, 3, -1, 1, 9.52531),
    Sketcher.Constraint("DistanceY", 41, 3, -1, 1, 8.501672),
    Sketcher.Constraint("DistanceX", 43, 3, -1, 1, 12.125321),
    Sketcher.Constraint("DistanceX", 45, 3, -1, 1, 5.243871),
    Sketcher.Constraint("DistanceX", 50, 3, -1, 1, 0.055728),
    Sketcher.Constraint("DistanceX", -1, 1, 58, 3, 0.055728),
    Sketcher.Constraint("DistanceX", -1, 1, 63, 3, 5.243871),
    Sketcher.Constraint("DistanceX", -1, 1, 65, 3, 12.125321),
    Sketcher.Constraint("DistanceX", -1, 1, 67, 3, 9.52531),
    Sketcher.Constraint("DistanceY", 67, 3, -1, 1, 8.501672),
    Sketcher.Constraint("DistanceX", -1, 1, 72, 3, 12.159751),
    Sketcher.Constraint("DistanceY", 72, 3, -1, 1, 3.89236),
    Sketcher.Constraint("DistanceX", -1, 1, 2, 2, 13.944828),
    Sketcher.Constraint("DistanceX", -1, 1, 3, 2, 13.790319),
    Sketcher.Constraint("DistanceX", -1, 1, 4, 2, 13.635811),
    Sketcher.Constraint("DistanceY", -1, 1, 6, 2, 7.523152),
    Sketcher.Constraint("DistanceY", -1, 1, 7, 2, 9.330821),
    Sketcher.Constraint("DistanceY", -1, 1, 11, 2, 10.933028),
    Sketcher.Constraint("DistanceY", -1, 1, 12, 2, 13.043041),
    Sketcher.Constraint("DistanceX", -1, 1, 13, 2, 5.897681),
    Sketcher.Constraint("DistanceY", -1, 1, 13, 2, 13.246409),
    Sketcher.Constraint("DistanceX", -1, 1, 14, 2, 5.440909),
    Sketcher.Constraint("DistanceX", 21, 2, -1, 1, 5.440909),
    Sketcher.Constraint("DistanceX", 22, 2, -1, 1, 5.897681),
    Sketcher.Constraint("DistanceY", -1, 1, 22, 2, 13.246409),
    Sketcher.Constraint("DistanceY", -1, 1, 23, 2, 13.043041),
    Sketcher.Constraint("DistanceY", -1, 1, 28, 2, 9.330821),
    Sketcher.Constraint("DistanceX", 30, 2, -1, 1, 11.506538),
    Sketcher.Constraint("DistanceX", 31, 2, -1, 1, 13.635811),
    Sketcher.Constraint("DistanceX", 32, 2, -1, 1, 13.790319),
    Sketcher.Constraint("DistanceY", -1, 1, 33, 2, 4.005218),
    Sketcher.Constraint("DistanceX", 36, 2, -1, 1, 14.472832),
    Sketcher.Constraint("DistanceX", 39, 2, -1, 1, 12.270451),
    Sketcher.Constraint("DistanceY", 39, 2, -1, 1, 2.384541),
    Sketcher.Constraint("DistanceX", 41, 2, -1, 1, 12.807368),
    Sketcher.Constraint("DistanceY", 43, 2, -1, 1, 7.169229),
    Sketcher.Constraint("DistanceY", 44, 2, -1, 1, 9.434251),
    Sketcher.Constraint("DistanceY", 47, 2, -1, 1, 12.024639),
    Sketcher.Constraint("DistanceX", 49, 2, -1, 1, 3.65409),
    Sketcher.Constraint("DistanceY", 49, 2, -1, 1, 11.953979),
    Sketcher.Constraint("DistanceX", 51, 2, -1, 1, 3.01472),
    Sketcher.Constraint("DistanceY", 51, 2, -1, 1, 14.18314),
    Sketcher.Constraint("DistanceX", -1, 1, 56, 2, 3.01472),
    Sketcher.Constraint("DistanceY", 56, 2, -1, 1, 14.18314),
    Sketcher.Constraint("DistanceX", -1, 1, 58, 2, 3.65409),
    Sketcher.Constraint("DistanceY", 58, 2, -1, 1, 11.953979),
    Sketcher.Constraint("DistanceY", 60, 2, -1, 1, 12.024639),
    Sketcher.Constraint("DistanceY", 63, 2, -1, 1, 9.434251),
    Sketcher.Constraint("DistanceY", 64, 2, -1, 1, 7.169229),
    Sketcher.Constraint("DistanceX", -1, 1, 68, 2, 12.270451),
    Sketcher.Constraint("DistanceY", 68, 2, -1, 1, 2.384541),
    Sketcher.Constraint("DistanceX", -1, 1, 2, 3, 11.084764),
    Sketcher.Constraint("DistanceY", -1, 1, 2, 3, 6.335457),
    Sketcher.Constraint("DistanceX", -1, 1, 7, 3, 7.549567),
    Sketcher.Constraint("DistanceX", -1, 1, 12, 3, 2.708983),
    Sketcher.Constraint("DistanceX", -1, 1, 15, 3, 7.459423),
    Sketcher.Constraint("DistanceX", 21, 3, -1, 1, 7.459423),
    Sketcher.Constraint("DistanceX", 24, 3, -1, 1, 2.708983),
    Sketcher.Constraint("DistanceX", 29, 3, -1, 1, 7.549567),
    Sketcher.Constraint("DistanceY", -1, 1, 31, 3, 1.389957),
    Sketcher.Constraint("DistanceX", 34, 3, -1, 1, 11.084764),
    Sketcher.Constraint("DistanceY", 43, 3, -1, 1, 3.998323),
    Sketcher.Constraint("DistanceX", 48, 3, -1, 1, 9.450758),
    Sketcher.Constraint("DistanceY", 48, 3, -1, 1, 8.584474),
    Sketcher.Constraint("DistanceX", 53, 3, -1, 1, 5.142082),
    Sketcher.Constraint("DistanceY", 53, 3, -1, 1, 11.686273),
    Sketcher.Constraint("DistanceX", -1, 1, 55, 3, 5.142082),
    Sketcher.Constraint("DistanceY", 55, 3, -1, 1, 11.686273),
    Sketcher.Constraint("DistanceX", -1, 1, 60, 3, 9.450758),
    Sketcher.Constraint("DistanceY", 60, 3, -1, 1, 8.584474),
    Sketcher.Constraint("DistanceY", 65, 3, -1, 1, 3.998323),
    Sketcher.Constraint("DistanceX", -1, 1, 1, 2, 12.179495),
    Sketcher.Constraint("DistanceX", -1, 1, 5, 2, 11.506538),
    Sketcher.Constraint("DistanceX", -1, 1, 10, 2, 8.525405),
    Sketcher.Constraint("DistanceX", -1, 1, 15, 2, 4.070152),
    Sketcher.Constraint("DistanceY", -1, 1, 16, 2, 12.452484),
    Sketcher.Constraint("DistanceX", 24, 2, -1, 1, 6.059612),
    Sketcher.Constraint("DistanceX", 25, 2, -1, 1, 8.525405),
    Sketcher.Constraint("DistanceX", 29, 2, -1, 1, 9.982594),
    Sketcher.Constraint("DistanceX", 34, 2, -1, 1, 12.179495),
    Sketcher.Constraint("DistanceX", 35, 2, -1, 1, 12.498086),
    Sketcher.Constraint("DistanceX", 37, 2, -1, 1, 14.420567),
    Sketcher.Constraint("DistanceX", 46, 2, -1, 1, 8.522886),
    Sketcher.Constraint("DistanceX", 48, 2, -1, 1, 6.438475),
    Sketcher.Constraint("DistanceX", -1, 1, 59, 2, 6.438475),
    Sketcher.Constraint("DistanceX", -1, 1, 61, 2, 8.522886),
    Sketcher.Constraint("DistanceX", -1, 1, 65, 2, 12.307368),
    Sketcher.Constraint("DistanceX", -1, 1, 67, 2, 11.328602),
    Sketcher.Constraint("DistanceX", -1, 1, 69, 2, 14.368303),
    Sketcher.Constraint("DistanceX", -1, 1, 70, 2, 14.420567),
])
pad1 = body.newObject("PartDesign::Pad", "Pad")
pad1.Profile = sketch1
pad1.Length = 2

sketch2 = body.newObject("Sketcher::SketchObject", "Sketch001")
sketch2.AttachmentSupport = (doc.getObject("XY_Plane"), [""])
sketch2.MapMode = "FlatFace"
sketch2.AttachmentOffset = App.Placement(Vector(0, 0, 2), App.Rotation())
sketch2.addGeometry(Part.Circle(Vector(0, 0, 0), Vector(0, 0, 1), 1), False)
sketch2.addConstraint([
    Sketcher.Constraint("Coincident", 0, 3, -1, 1),
    Sketcher.Constraint("Diameter", 0, 2.0),
])
pocket1 = body.newObject("PartDesign::Pocket", "Pocket")
pocket1.Profile = sketch2
pocket1.Type = "ThroughAll"

doc.recompute()
